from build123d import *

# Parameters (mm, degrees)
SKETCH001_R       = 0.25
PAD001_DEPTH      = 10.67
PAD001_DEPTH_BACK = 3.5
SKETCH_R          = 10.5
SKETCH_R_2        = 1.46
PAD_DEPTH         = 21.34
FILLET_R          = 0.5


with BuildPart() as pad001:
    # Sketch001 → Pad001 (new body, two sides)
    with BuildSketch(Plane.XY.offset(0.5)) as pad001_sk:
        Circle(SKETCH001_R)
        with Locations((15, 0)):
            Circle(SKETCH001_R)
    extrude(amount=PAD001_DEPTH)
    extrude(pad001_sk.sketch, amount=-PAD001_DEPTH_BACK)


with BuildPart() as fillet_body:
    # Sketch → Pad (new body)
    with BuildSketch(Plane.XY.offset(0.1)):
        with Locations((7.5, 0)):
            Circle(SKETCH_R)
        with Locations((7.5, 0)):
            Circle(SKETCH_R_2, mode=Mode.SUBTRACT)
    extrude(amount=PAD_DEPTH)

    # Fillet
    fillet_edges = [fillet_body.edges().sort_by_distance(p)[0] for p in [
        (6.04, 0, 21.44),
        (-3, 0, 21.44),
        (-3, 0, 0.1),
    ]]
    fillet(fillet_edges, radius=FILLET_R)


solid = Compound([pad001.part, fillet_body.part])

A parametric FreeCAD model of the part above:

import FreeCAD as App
import Part
import Sketcher
Q = App.Units.Quantity


def edges_at(feature, points):
    """Names of the edges that pass closest to the given points."""
    edges = feature.Shape.Edges
    near = lambda p: min(range(len(edges)), key=lambda i: edges[i].distToShape(Part.Vertex(*p))[0])
    return sorted({f"Edge{near(p) + 1}" for p in points})

doc = App.newDocument("Part")
body = doc.addObject("PartDesign::Body", "Body")
body.AllowCompound = True

# Sketch on XY plane
sketch1 = body.newObject("Sketcher::SketchObject", "Sketch")
sketch1.AttachmentSupport = (doc.getObject("XY_Plane"), [""])
sketch1.MapMode = "FlatFace"
sketch1.AttachmentOffset = App.Placement(App.Vector(0, 0, 0.5), App.Rotation())
sketch1.addGeometry([
    Part.Circle(App.Vector(0, 0, 0), App.Vector(0, 0, 1), 0.25),
    Part.Circle(App.Vector(15, 0, 0), App.Vector(0, 0, 1), 0.25),
], False)
sketch1.addConstraint([
    Sketcher.Constraint("Coincident", 0, 3, -1, 1),
    Sketcher.Constraint("Equal", 0, 1),
    Sketcher.Constraint("PointOnObject", 1, 3, -1),
    Sketcher.Constraint("Diameter", 0, Q("0.5 mm")),
    Sketcher.Constraint("DistanceX", -1, 1, 1, 3, Q("15 mm")),
])
pad1 = body.newObject("PartDesign::Pad", "Pad")
pad1.Profile = sketch1
pad1.Type = "TwoLengths"
pad1.Length = 10.67
pad1.Length2 = 3.5
body2 = doc.addObject("PartDesign::Body", "Body001")

# Sketch on XY plane
sketch2 = body2.newObject("Sketcher::SketchObject", "Sketch001")
sketch2.AttachmentSupport = (doc.getObject("XY_Plane001"), [""])
sketch2.MapMode = "FlatFace"
sketch2.AttachmentOffset = App.Placement(App.Vector(0, 0, 0.1), App.Rotation())
sketch2.addGeometry([
    Part.Circle(App.Vector(7.5, 0, 0), App.Vector(0, 0, 1), 10.5),
    Part.Circle(App.Vector(7.5, 0, 0), App.Vector(0, 0, 1), 1.5),
], False)
sketch2.addConstraint([
    Sketcher.Constraint("Coincident", 1, 3, 0, 3),
    Sketcher.Constraint("PointOnObject", 0, 3, -1),
    Sketcher.Constraint("Diameter", 0, Q("21 mm")),
    Sketcher.Constraint("Diameter", 1, Q("2.92 mm")),
    Sketcher.Constraint("DistanceX", -1, 1, 0, 3, Q("7.5 mm")),
])
pad2 = body2.newObject("PartDesign::Pad", "Pad001")
pad2.Profile = sketch2
pad2.Length = 21.34
doc.recompute()

fillet = body2.newObject("PartDesign::Fillet", "Fillet")
fillet.Base = (pad2, edges_at(pad2, [(6.04, 0, 21.44), (-3, 0, 21.44), (-3, 0, 0.1)]))
fillet.Radius = 0.5

doc.recompute()
